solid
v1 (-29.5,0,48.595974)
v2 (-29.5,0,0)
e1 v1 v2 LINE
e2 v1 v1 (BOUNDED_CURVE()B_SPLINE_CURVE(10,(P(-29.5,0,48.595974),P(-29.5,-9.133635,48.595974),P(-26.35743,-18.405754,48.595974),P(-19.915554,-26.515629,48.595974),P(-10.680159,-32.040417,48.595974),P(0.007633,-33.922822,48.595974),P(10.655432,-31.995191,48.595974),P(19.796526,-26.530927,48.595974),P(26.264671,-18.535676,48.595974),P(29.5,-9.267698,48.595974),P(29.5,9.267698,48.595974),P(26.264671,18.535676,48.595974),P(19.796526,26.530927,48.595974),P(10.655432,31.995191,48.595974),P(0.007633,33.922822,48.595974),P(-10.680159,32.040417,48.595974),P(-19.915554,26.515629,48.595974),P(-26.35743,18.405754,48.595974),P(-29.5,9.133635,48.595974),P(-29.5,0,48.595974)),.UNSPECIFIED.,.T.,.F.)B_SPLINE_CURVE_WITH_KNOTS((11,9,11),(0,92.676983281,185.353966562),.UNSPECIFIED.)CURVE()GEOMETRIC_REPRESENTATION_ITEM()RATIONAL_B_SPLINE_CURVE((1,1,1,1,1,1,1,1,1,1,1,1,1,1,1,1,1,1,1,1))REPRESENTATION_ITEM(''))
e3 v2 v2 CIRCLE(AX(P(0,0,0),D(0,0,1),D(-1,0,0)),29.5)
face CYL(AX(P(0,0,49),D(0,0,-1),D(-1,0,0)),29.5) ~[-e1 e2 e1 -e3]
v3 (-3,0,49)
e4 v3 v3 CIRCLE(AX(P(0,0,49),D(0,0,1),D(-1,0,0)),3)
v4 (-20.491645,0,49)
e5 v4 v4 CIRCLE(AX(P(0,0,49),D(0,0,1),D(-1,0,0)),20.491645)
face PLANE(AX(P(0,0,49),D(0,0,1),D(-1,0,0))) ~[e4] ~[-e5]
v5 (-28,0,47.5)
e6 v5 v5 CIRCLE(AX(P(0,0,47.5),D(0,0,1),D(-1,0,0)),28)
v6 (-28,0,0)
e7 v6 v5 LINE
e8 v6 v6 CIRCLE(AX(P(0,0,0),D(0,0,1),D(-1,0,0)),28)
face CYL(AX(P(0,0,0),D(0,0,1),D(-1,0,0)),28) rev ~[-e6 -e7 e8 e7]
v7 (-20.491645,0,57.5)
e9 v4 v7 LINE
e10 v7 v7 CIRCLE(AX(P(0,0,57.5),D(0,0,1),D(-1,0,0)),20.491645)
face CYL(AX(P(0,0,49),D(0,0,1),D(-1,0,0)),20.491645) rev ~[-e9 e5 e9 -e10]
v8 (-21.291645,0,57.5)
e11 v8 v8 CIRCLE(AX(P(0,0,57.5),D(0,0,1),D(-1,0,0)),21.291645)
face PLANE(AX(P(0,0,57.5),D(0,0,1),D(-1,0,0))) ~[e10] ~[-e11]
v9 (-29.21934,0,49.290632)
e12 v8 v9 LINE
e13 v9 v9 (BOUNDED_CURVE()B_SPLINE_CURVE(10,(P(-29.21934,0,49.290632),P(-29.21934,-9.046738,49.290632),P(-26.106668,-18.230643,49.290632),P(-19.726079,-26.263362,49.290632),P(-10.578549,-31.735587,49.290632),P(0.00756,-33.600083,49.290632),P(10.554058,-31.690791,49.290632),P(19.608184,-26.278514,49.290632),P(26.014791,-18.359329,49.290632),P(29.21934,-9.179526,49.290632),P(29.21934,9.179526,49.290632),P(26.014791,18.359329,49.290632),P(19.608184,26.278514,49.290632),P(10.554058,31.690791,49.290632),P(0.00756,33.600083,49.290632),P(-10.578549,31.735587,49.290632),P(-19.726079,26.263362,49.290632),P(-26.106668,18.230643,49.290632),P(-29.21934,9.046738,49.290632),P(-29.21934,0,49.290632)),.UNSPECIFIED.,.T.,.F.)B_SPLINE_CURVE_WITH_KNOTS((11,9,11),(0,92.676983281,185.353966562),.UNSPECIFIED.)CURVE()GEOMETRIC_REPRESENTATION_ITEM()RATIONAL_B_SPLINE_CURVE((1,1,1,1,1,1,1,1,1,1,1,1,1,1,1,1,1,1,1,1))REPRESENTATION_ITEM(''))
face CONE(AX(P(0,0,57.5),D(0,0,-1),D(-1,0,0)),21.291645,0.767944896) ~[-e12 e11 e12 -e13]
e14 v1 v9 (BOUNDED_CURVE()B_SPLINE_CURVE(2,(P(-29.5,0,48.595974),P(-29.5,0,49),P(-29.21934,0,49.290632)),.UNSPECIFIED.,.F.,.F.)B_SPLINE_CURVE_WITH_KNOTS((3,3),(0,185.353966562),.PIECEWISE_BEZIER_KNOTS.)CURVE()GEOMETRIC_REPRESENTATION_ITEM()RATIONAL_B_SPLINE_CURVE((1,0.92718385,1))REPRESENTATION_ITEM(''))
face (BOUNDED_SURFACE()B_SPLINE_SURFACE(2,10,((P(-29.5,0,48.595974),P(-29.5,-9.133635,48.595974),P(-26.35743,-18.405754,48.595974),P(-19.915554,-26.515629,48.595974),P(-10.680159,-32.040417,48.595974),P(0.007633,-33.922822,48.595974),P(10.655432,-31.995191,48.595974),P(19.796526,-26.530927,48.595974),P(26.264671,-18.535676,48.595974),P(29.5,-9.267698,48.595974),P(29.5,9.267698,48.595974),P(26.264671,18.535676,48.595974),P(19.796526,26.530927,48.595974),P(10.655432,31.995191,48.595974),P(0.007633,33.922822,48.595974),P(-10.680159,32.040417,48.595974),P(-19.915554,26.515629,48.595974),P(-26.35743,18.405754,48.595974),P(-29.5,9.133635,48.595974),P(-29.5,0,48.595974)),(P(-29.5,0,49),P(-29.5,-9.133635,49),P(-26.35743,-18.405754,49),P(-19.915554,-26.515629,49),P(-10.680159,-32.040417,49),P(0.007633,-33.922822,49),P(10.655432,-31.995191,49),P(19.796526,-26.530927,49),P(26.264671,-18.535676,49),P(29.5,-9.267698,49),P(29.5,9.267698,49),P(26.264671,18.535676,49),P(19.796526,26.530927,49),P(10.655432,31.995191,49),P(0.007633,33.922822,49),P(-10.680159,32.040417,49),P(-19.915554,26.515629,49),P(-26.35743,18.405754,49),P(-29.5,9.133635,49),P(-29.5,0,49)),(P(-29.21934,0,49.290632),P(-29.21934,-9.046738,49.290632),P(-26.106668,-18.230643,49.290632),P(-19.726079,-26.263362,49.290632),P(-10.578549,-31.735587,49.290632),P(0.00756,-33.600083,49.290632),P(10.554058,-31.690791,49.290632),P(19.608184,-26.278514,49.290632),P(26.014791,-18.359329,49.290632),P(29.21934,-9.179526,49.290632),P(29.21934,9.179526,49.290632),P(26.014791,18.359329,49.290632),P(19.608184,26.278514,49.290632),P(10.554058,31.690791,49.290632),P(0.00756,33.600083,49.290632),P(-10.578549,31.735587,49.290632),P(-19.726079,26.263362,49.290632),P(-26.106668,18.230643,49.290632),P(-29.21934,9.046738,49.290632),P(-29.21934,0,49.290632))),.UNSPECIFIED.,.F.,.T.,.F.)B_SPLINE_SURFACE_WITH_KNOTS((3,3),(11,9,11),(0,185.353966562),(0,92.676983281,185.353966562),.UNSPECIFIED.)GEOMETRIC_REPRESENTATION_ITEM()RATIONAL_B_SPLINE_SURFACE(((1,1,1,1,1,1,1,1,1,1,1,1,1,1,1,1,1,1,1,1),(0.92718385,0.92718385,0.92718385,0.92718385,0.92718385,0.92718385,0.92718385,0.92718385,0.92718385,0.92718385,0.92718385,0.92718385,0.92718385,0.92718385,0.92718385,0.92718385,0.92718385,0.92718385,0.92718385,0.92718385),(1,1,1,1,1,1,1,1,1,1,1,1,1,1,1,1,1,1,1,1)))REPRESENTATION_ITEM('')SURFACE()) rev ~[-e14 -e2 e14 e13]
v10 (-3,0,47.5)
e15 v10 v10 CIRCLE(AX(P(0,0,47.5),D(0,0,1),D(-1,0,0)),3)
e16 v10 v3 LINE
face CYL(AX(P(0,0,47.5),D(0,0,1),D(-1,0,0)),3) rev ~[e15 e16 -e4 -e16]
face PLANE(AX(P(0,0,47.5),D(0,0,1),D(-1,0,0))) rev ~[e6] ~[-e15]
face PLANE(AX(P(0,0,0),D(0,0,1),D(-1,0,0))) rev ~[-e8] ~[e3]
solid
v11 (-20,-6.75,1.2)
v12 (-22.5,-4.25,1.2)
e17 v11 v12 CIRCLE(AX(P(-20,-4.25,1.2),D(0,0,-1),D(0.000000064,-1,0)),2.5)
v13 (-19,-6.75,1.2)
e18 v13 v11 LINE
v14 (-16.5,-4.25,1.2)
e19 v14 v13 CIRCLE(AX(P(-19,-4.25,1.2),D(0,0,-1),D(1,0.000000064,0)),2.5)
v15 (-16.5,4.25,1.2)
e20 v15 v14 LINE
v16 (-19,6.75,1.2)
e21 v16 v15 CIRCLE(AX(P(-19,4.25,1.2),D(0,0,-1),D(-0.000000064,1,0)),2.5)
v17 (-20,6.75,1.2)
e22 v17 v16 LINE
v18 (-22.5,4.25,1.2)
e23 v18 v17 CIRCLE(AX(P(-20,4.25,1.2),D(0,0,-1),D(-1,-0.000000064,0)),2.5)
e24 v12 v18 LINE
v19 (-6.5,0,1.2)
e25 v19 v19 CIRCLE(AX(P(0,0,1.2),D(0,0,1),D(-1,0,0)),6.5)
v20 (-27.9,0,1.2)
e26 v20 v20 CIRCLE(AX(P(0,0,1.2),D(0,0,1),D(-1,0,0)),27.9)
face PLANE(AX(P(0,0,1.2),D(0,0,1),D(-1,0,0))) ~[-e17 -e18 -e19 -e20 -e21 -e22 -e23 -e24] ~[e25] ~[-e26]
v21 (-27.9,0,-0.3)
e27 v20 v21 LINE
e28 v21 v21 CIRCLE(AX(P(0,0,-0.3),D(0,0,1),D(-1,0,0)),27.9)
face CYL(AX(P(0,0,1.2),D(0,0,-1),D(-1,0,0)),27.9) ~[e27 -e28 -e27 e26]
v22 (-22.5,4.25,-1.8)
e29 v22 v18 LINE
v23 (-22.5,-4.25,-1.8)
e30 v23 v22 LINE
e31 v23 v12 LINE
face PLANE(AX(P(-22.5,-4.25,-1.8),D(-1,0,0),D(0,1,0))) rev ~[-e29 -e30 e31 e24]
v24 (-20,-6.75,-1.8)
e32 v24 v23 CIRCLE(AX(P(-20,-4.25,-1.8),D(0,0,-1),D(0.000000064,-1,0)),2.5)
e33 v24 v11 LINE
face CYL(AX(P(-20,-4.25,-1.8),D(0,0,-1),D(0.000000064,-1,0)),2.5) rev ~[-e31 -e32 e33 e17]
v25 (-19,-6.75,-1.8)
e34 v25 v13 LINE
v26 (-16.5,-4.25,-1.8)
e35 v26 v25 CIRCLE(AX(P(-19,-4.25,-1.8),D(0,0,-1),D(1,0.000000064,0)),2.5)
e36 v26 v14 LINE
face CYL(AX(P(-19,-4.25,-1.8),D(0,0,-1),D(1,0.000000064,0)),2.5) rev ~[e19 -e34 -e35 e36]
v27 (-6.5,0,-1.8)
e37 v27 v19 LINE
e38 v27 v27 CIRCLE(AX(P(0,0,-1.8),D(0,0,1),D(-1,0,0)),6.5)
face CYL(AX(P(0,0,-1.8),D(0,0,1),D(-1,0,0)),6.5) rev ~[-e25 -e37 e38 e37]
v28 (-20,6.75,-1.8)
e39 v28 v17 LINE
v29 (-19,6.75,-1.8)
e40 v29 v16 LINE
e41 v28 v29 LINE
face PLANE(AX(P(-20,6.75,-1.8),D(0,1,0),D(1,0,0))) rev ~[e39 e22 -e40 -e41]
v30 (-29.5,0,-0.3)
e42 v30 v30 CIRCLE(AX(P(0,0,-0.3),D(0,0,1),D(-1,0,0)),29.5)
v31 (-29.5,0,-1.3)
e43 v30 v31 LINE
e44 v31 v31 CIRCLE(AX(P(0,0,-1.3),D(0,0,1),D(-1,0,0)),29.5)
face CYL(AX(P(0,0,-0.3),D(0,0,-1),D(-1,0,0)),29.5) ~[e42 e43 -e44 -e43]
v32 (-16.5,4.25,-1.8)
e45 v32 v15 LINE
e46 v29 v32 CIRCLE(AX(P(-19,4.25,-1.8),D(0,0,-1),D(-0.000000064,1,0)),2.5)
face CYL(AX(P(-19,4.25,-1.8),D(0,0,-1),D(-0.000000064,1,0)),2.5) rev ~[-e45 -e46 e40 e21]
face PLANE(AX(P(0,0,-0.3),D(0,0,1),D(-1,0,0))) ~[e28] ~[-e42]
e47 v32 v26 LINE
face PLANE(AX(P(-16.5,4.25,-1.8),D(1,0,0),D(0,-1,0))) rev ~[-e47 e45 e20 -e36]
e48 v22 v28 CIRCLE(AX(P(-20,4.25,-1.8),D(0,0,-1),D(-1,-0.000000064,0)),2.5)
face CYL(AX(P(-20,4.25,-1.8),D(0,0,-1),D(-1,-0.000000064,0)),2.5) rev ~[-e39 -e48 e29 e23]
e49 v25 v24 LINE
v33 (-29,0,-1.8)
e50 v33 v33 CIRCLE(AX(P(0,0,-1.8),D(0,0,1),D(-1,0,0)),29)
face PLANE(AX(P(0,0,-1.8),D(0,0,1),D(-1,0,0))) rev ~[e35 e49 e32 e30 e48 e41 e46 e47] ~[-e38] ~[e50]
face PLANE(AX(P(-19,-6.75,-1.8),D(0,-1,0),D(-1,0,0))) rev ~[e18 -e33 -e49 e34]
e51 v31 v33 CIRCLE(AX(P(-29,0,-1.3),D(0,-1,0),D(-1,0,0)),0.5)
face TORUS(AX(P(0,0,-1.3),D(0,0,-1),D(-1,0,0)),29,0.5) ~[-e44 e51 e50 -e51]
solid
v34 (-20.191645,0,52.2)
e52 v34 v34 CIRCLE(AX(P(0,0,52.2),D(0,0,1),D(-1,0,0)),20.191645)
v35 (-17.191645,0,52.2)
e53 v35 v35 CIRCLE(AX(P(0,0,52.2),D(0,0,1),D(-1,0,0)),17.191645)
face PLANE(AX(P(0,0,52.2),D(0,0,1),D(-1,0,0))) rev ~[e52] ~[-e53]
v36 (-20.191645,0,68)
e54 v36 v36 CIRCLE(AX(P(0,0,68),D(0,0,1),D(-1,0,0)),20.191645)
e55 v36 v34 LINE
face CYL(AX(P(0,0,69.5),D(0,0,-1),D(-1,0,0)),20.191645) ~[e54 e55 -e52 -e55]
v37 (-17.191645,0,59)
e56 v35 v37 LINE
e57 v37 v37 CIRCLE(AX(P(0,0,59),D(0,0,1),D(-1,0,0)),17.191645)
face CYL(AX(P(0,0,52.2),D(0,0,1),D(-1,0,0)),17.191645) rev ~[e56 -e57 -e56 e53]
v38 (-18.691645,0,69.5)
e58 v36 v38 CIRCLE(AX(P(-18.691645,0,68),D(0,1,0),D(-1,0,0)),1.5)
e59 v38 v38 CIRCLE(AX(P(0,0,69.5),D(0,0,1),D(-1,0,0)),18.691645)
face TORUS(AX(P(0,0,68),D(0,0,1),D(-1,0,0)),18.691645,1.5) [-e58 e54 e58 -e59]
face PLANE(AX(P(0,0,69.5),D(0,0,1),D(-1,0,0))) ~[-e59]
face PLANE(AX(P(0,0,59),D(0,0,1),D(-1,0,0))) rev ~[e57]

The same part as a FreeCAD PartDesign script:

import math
import FreeCAD as App
import Part
import Sketcher

V = App.Vector
Q = App.Units.Quantity


def edges_at(feature, points):
    """Names of the edges that pass closest to the given points."""
    edges = feature.Shape.Edges
    near = lambda p: min(range(len(edges)), key=lambda i: edges[i].distToShape(Part.Vertex(*p))[0])
    return sorted({f"Edge{near(p) + 1}" for p in points})


def add_polygon(sketch, points):
    """Adds a closed chain of lines whose ends are joined by coincident constraints."""
    first, n = sketch.GeometryCount, len(points)
    for a, b in zip(points, points[1:] + points[:1]):
        sketch.addGeometry(Part.LineSegment(App.Vector(*a, 0), App.Vector(*b, 0)), False)
    for i in range(n):
        sketch.addConstraint(Sketcher.Constraint("Coincident", first + i, 2, first + (i + 1) % n, 1))

doc = App.newDocument("Part")
params = doc.addObject("Spreadsheet::Sheet", "Params")
for row, (alias, value) in enumerate([
    ("sketch1_width", "25 mm"),
    ("sketch1_height", "49 mm"),
    ("sketch1_width2", "1.5 mm"),
    ("sketch1_width3", "0.8 mm"),
    ("sketch1_height2", "8.5 mm"),
    ("revolution_angle", "360 deg"),
    ("fillet_radius", "1 mm"),
    ("sketch2_width", "3 mm"),
    ("sketch2_height", "17.3 mm"),
    ("sketch2_height2", "6.8 mm"),
    ("revolution2_angle", "360 deg"),
    ("fillet2_radius", "1.5 mm"),
    ("sketch3_width", "23 mm"),
    ("sketch3_height", "3 mm"),
    ("sketch3_width2", "21.4 mm"),
    ("revolution3_angle", "360 deg"),
    ("sketch4_radius", "2.5 mm"),
    ("sketch4_width", "1 mm"),
    ("sketch4_height", "8.5 mm"),
    ("pocket1_length", "25 mm"),
    ("fillet3_radius", "0.5 mm"),
], start=1):
    params.set(f"A{row}", alias)
    params.set(f"B{row}", "=" + value)
    params.setAlias(f"B{row}", alias)

body = doc.addObject("PartDesign::Body", "Body")

# Sketch on XZ plane
sketch1 = body.newObject("Sketcher::SketchObject", "Sketch")
sketch1.AttachmentSupport = (doc.getObject("XZ_Plane"), [""])
sketch1.MapMode = "FlatFace"
add_polygon(sketch1, [(-29.5, 49), (-29.5, 0), (-28, 0), (-28, 47.5), (-3, 47.5), (-3, 49), (-20.5, 49), (-20.5, 57.5), (-21.3, 57.5)])  # lines 0-8
sketch1.addConstraint([
    Sketcher.Constraint("Vertical", 0),
    Sketcher.Constraint("Horizontal", 1),
    Sketcher.Constraint("Vertical", 2),
    Sketcher.Constraint("Horizontal", 3),
    Sketcher.Constraint("Vertical", 4),
    Sketcher.Constraint("Horizontal", 5),
    Sketcher.Constraint("Vertical", 6),
    Sketcher.Constraint("Horizontal", 7),
    Sketcher.Constraint("PointOnObject", 0, 2, -1),
    Sketcher.Constraint("Horizontal", 5, 2, 8, 2),
    Sketcher.Constraint("Equal", 1, 4),
    Sketcher.Constraint("DistanceX", 3, 1, 3, 2, Q("25 mm")),
    Sketcher.Constraint("DistanceY", 0, 2, 0, 1, Q("49 mm")),
    Sketcher.Constraint("Angle", 8, Q("-134.000001 deg")),
    Sketcher.Constraint("DistanceX", 1, 1, 1, 2, Q("1.5 mm")),
    Sketcher.Constraint("DistanceX", 7, 2, 7, 1, Q("0.8 mm")),
    Sketcher.Constraint("DistanceY", 6, 1, 6, 2, Q("8.5 mm")),
    Sketcher.Constraint("DistanceX", 1, 2, -1, 1, Q("28 mm")),
])
sketch1.setExpression("Constraints[20]", "Params.sketch1_width")
sketch1.setExpression("Constraints[21]", "Params.sketch1_height")
sketch1.setExpression("Constraints[23]", "Params.sketch1_width2")
sketch1.setExpression("Constraints[24]", "Params.sketch1_width3")
sketch1.setExpression("Constraints[25]", "Params.sketch1_height2")
revolution = body.newObject("PartDesign::Revolution", "Revolution")
revolution.Profile = sketch1
revolution.ReferenceAxis = (sketch1, ["V_Axis"])
revolution.setExpression("Angle", "Params.revolution_angle")
doc.recompute()

fillet = body.newObject("PartDesign::Fillet", "Fillet")
fillet.Base = (revolution, edges_at(revolution, [(29.5, 0, 49)]))
fillet.setExpression("Radius", "Params.fillet_radius")
body2 = doc.addObject("PartDesign::Body", "Body001")

# Sketch on XZ plane
sketch2 = body2.newObject("Sketcher::SketchObject", "Sketch001")
sketch2.AttachmentSupport = (doc.getObject("XZ_Plane001"), [""])
sketch2.MapMode = "FlatFace"
add_polygon(sketch2, [(-20.2, 69.5), (-20.2, 52.2), (-17.2, 52.2), (-17.2, 59), (0, 59), (0, 69.5)])  # lines 0-5
sketch2.addConstraint([
    Sketcher.Constraint("Vertical", 0),
    Sketcher.Constraint("Horizontal", 1),
    Sketcher.Constraint("Vertical", 2),
    Sketcher.Constraint("Horizontal", 3),
    Sketcher.Constraint("Vertical", 4),
    Sketcher.Constraint("Horizontal", 5),
    Sketcher.Constraint("PointOnObject", 3, 2, -2),
    Sketcher.Constraint("DistanceX", 1, 1, 1, 2, Q("3 mm")),
    Sketcher.Constraint("DistanceY", 0, 2, 0, 1, Q("17.3 mm")),
    Sketcher.Constraint("DistanceY", 2, 1, 2, 2, Q("6.8 mm")),
    Sketcher.Constraint("DistanceY", -1, 1, 2, 2, Q("59 mm")),
    Sketcher.Constraint("DistanceX", 3, 1, 3, 2, Q("17.191645 mm")),
])
sketch2.setExpression("Constraints[13]", "Params.sketch2_width")
sketch2.setExpression("Constraints[14]", "Params.sketch2_height")
sketch2.setExpression("Constraints[15]", "Params.sketch2_height2")
revolution2 = body2.newObject("PartDesign::Revolution", "Revolution001")
revolution2.Profile = sketch2
revolution2.ReferenceAxis = (sketch2, ["V_Axis"])
revolution2.setExpression("Angle", "Params.revolution2_angle")
doc.recompute()

fillet2 = body2.newObject("PartDesign::Fillet", "Fillet001")
fillet2.Base = (revolution2, edges_at(revolution2, [(20.192, 0, 69.5)]))
fillet2.setExpression("Radius", "Params.fillet2_radius")
body3 = doc.addObject("PartDesign::Body", "Body002")

# Sketch on XZ plane
sketch3 = body3.newObject("Sketcher::SketchObject", "Sketch002")
sketch3.AttachmentSupport = (doc.getObject("XZ_Plane002"), [""])
sketch3.MapMode = "FlatFace"
add_polygon(sketch3, [(-29.5, -0.3), (-29.5, -1.8), (-6.5, -1.8), (-6.5, 1.2), (-27.9, 1.2), (-27.9, -0.3)])  # lines 0-5
sketch3.addConstraint([
    Sketcher.Constraint("Vertical", 0),
    Sketcher.Constraint("Horizontal", 1),
    Sketcher.Constraint("Vertical", 2),
    Sketcher.Constraint("Horizontal", 3),
    Sketcher.Constraint("Vertical", 4),
    Sketcher.Constraint("Horizontal", 5),
    Sketcher.Constraint("Equal", 0, 4),
    Sketcher.Constraint("DistanceX", 1, 1, 1, 2, Q("23 mm")),
    Sketcher.Constraint("DistanceY", 2, 1, 2, 2, Q("3 mm")),
    Sketcher.Constraint("DistanceX", 3, 2, 3, 1, Q("21.4 mm")),
    Sketcher.Constraint("DistanceX", 0, 2, -1, 1, Q("29.5 mm")),
    Sketcher.Constraint("DistanceY", 0, 2, -1, 1, Q("1.8 mm")),
])
sketch3.setExpression("Constraints[13]", "Params.sketch3_width")
sketch3.setExpression("Constraints[14]", "Params.sketch3_height")
sketch3.setExpression("Constraints[15]", "Params.sketch3_width2")
revolution3 = body3.newObject("PartDesign::Revolution", "Revolution002")
revolution3.Profile = sketch3
revolution3.ReferenceAxis = (sketch3, ["V_Axis"])
revolution3.setExpression("Angle", "Params.revolution3_angle")

# Sketch on XY plane
sketch4 = body3.newObject("Sketcher::SketchObject", "Sketch003")
sketch4.AttachmentSupport = (doc.getObject("XY_Plane002"), [""])
sketch4.MapMode = "FlatFace"
sketch4.AttachmentOffset = App.Placement(V(0, 0, -1.8), App.Rotation())
sketch4.addGeometry([
    Part.ArcOfCircle(Part.Circle(V(-20, 4.3, 0), V(0, 0, 1), 2.5), math.radians(90), math.radians(180)),  # 0
    Part.LineSegment(V(-20, 6.8, 0), V(-19, 6.8, 0)),  # 1
    Part.ArcOfCircle(Part.Circle(V(-19, 4.3, 0), V(0, 0, 1), 2.5), math.radians(0), math.radians(90)),  # 2
    Part.LineSegment(V(-16.5, 4.2, 0), V(-16.5, -4.2, 0)),  # 3
    Part.ArcOfCircle(Part.Circle(V(-19, -4.3, 0), V(0, 0, 1), 2.5), math.radians(-90), math.radians(0)),  # 4
    Part.LineSegment(V(-19, -6.8, 0), V(-20, -6.8, 0)),  # 5
    Part.ArcOfCircle(Part.Circle(V(-20, -4.3, 0), V(0, 0, 1), 2.5), math.radians(180), math.radians(270)),  # 6
    Part.LineSegment(V(-22.5, -4.2, 0), V(-22.5, 4.2, 0)),  # 7
], False)
sketch4.addConstraint([
    Sketcher.Constraint("Tangent", 0, 1, 1, 1),
    Sketcher.Constraint("Tangent", 1, 2, 2, 2),
    Sketcher.Constraint("Tangent", 2, 1, 3, 1),
    Sketcher.Constraint("Tangent", 3, 2, 4, 2),
    Sketcher.Constraint("Tangent", 4, 1, 5, 1),
    Sketcher.Constraint("Tangent", 5, 2, 6, 2),
    Sketcher.Constraint("Tangent", 6, 1, 7, 1),
    Sketcher.Constraint("Tangent", 7, 2, 0, 2),
    Sketcher.Constraint("Horizontal", 1),
    Sketcher.Constraint("Vertical", 3),
    Sketcher.Constraint("Horizontal", 5),
    Sketcher.Constraint("Vertical", 7),
    Sketcher.Constraint("Equal", 0, 2),
    Sketcher.Constraint("Equal", 2, 4),
    Sketcher.Constraint("Equal", 4, 6),
    Sketcher.Constraint("Radius", 0, Q("2.5 mm")),
    Sketcher.Constraint("DistanceX", 1, 1, 1, 2, Q("1 mm")),
    Sketcher.Constraint("DistanceY", 3, 2, 3, 1, Q("8.5 mm")),
    Sketcher.Constraint("DistanceX", 0, 3, -1, 1, Q("20 mm")),
    Sketcher.Constraint("DistanceY", -1, 1, 0, 3, Q("4.25 mm")),
])
sketch4.setExpression("Constraints[15]", "Params.sketch4_radius")
sketch4.setExpression("Constraints[16]", "Params.sketch4_width")
sketch4.setExpression("Constraints[17]", "Params.sketch4_height")
pocket1 = body3.newObject("PartDesign::Pocket", "Pocket")
pocket1.Profile = sketch4
pocket1.setExpression("Length", "Params.pocket1_length")
pocket1.Reversed = True
doc.recompute()

fillet3 = body3.newObject("PartDesign::Fillet", "Fillet002")
fillet3.Base = (pocket1, edges_at(pocket1, [(29.5, 0, -1.8)]))
fillet3.setExpression("Radius", "Params.fillet3_radius")

doc.recompute()
